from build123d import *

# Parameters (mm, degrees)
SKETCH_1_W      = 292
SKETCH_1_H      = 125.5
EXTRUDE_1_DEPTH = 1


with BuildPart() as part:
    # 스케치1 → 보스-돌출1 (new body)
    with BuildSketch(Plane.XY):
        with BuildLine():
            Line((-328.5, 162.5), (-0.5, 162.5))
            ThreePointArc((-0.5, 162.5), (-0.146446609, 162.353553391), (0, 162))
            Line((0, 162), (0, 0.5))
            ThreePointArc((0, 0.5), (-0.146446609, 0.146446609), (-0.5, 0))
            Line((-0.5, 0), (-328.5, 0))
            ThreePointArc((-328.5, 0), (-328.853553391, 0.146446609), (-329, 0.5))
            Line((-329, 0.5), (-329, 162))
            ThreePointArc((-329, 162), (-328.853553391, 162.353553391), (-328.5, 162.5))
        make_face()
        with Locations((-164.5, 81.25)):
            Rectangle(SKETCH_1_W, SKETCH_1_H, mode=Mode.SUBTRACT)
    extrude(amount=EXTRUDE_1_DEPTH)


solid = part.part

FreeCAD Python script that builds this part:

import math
import FreeCAD as App
import Part
import Sketcher

V = App.Vector
Q = App.Units.Quantity

doc = App.newDocument("Part")
body = doc.addObject("PartDesign::Body", "Body")

sketch1 = body.newObject("Sketcher::SketchObject", "Sketch")
sketch1.AttachmentSupport = (doc.getObject("XY_Plane"), [""])
sketch1.MapMode = "FlatFace"
sketch1.addGeometry([
    Part.LineSegment(V(-0.5, 162.5, 0), V(-328.5, 162.5, 0)),
    Part.ArcOfCircle(Part.Circle(V(-328.5, 162, 0), V(0, 0, 1), 0.5), math.radians(90), math.radians(180)),
    Part.LineSegment(V(-329, 162, 0), V(-329, 0.5, 0)),
    Part.ArcOfCircle(Part.Circle(V(-328.5, 0.5, 0), V(0, 0, 1), 0.5), math.radians(180), math.radians(270)),
    Part.LineSegment(V(-328.5, 0, 0), V(-0.5, 0, 0)),
    Part.ArcOfCircle(Part.Circle(V(-0.5, 0.5, 0), V(0, 0, 1), 0.5), math.radians(-90), math.radians(0)),
    Part.LineSegment(V(0, 0.5, 0), V(0, 162, 0)),
    Part.ArcOfCircle(Part.Circle(V(-0.5, 162, 0), V(0, 0, 1), 0.5), math.radians(0), math.radians(90)),
    Part.LineSegment(V(-310.5, 18.5, 0), V(-310.5, 144, 0)),
    Part.LineSegment(V(-310.5, 144, 0), V(-18.5, 144, 0)),
    Part.LineSegment(V(-18.5, 144, 0), V(-18.5, 18.5, 0)),
    Part.LineSegment(V(-18.5, 18.5, 0), V(-310.5, 18.5, 0)),
], False)
sketch1.addConstraint([
    Sketcher.Constraint("Tangent", 0, 2, 1, 1),
    Sketcher.Constraint("Tangent", 1, 2, 2, 1),
    Sketcher.Constraint("Tangent", 2, 2, 3, 1),
    Sketcher.Constraint("Tangent", 3, 2, 4, 1),
    Sketcher.Constraint("Tangent", 4, 2, 5, 1),
    Sketcher.Constraint("Tangent", 5, 2, 6, 1),
    Sketcher.Constraint("Tangent", 6, 2, 7, 1),
    Sketcher.Constraint("Tangent", 7, 2, 0, 1),
    Sketcher.Constraint("Coincident", 8, 2, 9, 1),
    Sketcher.Constraint("Coincident", 9, 2, 10, 1),
    Sketcher.Constraint("Coincident", 10, 2, 11, 1),
    Sketcher.Constraint("Coincident", 11, 2, 8, 1),
    Sketcher.Constraint("Horizontal", 0),
    Sketcher.Constraint("Vertical", 2),
    Sketcher.Constraint("Horizontal", 4),
    Sketcher.Constraint("Vertical", 6),
    Sketcher.Constraint("Vertical", 8),
    Sketcher.Constraint("Horizontal", 9),
    Sketcher.Constraint("Vertical", 10),
    Sketcher.Constraint("Horizontal", 11),
    Sketcher.Constraint("Equal", 1, 3),
    Sketcher.Constraint("Equal", 3, 5),
    Sketcher.Constraint("Equal", 5, 7),
    Sketcher.Constraint("PointOnObject", 3, 2, -1),
    Sketcher.Constraint("PointOnObject", 5, 2, -2),
    Sketcher.Constraint("Radius", 1, Q("0.5 mm")),
    Sketcher.Constraint("DistanceX", 0, 2, 0, 1, Q("328 mm")),
    Sketcher.Constraint("DistanceX", 9, 1, 9, 2, Q("292 mm")),
    Sketcher.Constraint("DistanceY", 2, 2, 2, 1, Q("161.5 mm")),
    Sketcher.Constraint("DistanceY", 8, 1, 8, 2, Q("125.5 mm")),
    Sketcher.Constraint("DistanceY", -1, 1, 8, 2, Q("144 mm")),
    Sketcher.Constraint("DistanceX", 1, 3, 8, 2, Q("18 mm")),
])
pad1 = body.newObject("PartDesign::Pad", "Pad")
pad1.Profile = sketch1
pad1.Length = 1

doc.recompute()
